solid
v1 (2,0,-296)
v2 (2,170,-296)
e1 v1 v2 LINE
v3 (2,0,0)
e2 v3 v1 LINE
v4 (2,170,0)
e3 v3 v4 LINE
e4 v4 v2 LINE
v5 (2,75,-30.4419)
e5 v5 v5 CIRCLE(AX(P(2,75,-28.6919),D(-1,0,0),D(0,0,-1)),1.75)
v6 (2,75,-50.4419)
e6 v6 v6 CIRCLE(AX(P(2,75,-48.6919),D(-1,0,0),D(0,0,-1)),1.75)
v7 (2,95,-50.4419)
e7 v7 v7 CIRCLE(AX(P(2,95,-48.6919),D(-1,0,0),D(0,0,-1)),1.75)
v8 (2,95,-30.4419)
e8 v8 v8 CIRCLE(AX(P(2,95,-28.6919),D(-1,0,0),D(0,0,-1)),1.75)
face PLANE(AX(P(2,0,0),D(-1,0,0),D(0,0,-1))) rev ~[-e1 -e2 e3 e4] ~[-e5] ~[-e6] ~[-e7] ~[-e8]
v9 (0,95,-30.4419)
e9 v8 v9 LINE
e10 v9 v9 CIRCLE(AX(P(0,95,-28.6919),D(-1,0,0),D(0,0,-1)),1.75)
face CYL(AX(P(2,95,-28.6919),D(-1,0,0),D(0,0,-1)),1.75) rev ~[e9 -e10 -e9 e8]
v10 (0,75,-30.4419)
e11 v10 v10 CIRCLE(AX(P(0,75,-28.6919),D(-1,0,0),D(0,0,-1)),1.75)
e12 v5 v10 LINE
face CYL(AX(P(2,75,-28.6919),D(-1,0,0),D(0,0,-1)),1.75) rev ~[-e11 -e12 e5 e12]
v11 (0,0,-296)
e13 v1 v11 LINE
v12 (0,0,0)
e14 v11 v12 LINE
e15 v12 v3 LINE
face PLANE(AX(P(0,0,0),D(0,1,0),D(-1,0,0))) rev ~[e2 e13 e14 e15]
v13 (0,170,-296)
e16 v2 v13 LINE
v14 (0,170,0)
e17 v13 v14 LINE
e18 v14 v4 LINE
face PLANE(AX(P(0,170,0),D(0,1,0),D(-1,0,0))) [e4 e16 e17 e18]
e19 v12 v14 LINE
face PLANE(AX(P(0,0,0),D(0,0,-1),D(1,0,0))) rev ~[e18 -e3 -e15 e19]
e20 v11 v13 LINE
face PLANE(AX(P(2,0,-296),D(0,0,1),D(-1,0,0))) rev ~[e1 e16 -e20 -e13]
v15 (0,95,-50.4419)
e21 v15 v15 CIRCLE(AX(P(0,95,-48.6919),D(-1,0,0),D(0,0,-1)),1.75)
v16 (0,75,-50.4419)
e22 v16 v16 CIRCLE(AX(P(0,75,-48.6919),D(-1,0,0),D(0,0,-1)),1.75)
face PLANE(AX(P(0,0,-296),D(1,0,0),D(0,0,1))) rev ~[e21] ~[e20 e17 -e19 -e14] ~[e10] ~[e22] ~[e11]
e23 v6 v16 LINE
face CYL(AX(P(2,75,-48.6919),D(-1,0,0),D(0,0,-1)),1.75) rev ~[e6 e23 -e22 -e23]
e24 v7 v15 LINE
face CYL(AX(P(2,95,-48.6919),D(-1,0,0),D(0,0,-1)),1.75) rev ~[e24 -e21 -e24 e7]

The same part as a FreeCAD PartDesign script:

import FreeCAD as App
import Part
import Sketcher

V = App.Vector

doc = App.newDocument("Part")
body = doc.addObject("PartDesign::Body", "Body")

sketch1 = doc.addObject("Sketcher::SketchObject", "Sketch")
body.addObject(sketch1)
sketch1.AttachmentSupport = (doc.XZ_Plane, [""])
sketch1.MapMode = "FlatFace"
sketch1.addGeometry(Part.LineSegment(V(0, -296, 0), V(0, 0, 0)), False)
sketch1.addGeometry(Part.LineSegment(V(0, 0, 0), V(2, 0, 0)), False)
sketch1.addGeometry(Part.LineSegment(V(2, 0, 0), V(2, -296, 0)), False)
sketch1.addGeometry(Part.LineSegment(V(2, -296, 0), V(0, -296, 0)), False)
sketch1.addConstraint(Sketcher.Constraint("Coincident", 0, 2, 1, 1))
sketch1.addConstraint(Sketcher.Constraint("Coincident", 1, 2, 2, 1))
sketch1.addConstraint(Sketcher.Constraint("Coincident", 2, 2, 3, 1))
sketch1.addConstraint(Sketcher.Constraint("Coincident", 3, 2, 0, 1))
sketch1.addConstraint(Sketcher.Constraint("Vertical", 0))
sketch1.addConstraint(Sketcher.Constraint("Horizontal", 1))
sketch1.addConstraint(Sketcher.Constraint("Vertical", 2))
sketch1.addConstraint(Sketcher.Constraint("Horizontal", 3))
sketch1.addConstraint(Sketcher.Constraint("Coincident", 0, 2, -1, 1))
sketch1.addConstraint(Sketcher.Constraint("DistanceX", 1, 1, 1, 2, 2.0))
sketch1.addConstraint(Sketcher.Constraint("DistanceY", 0, 1, 0, 2, 296.0))
pad1 = doc.addObject("PartDesign::Pad", "Pad")
body.addObject(pad1)
pad1.Profile = sketch1
pad1.Length = 170
pad1.Reversed = True

sketch2 = doc.addObject("Sketcher::SketchObject", "Sketch001")
body.addObject(sketch2)
sketch2.AttachmentSupport = (doc.YZ_Plane, [""])
sketch2.MapMode = "FlatFace"
sketch2.AttachmentOffset = App.Placement(V(0, 0, 2), App.Rotation())
sketch2.addGeometry(Part.Circle(V(95, -48.7, 0), V(0, 0, 1), 1.8), False)
sketch2.addGeometry(Part.Circle(V(95, -28.7, 0), V(0, 0, 1), 1.8), False)
sketch2.addGeometry(Part.Circle(V(75, -28.7, 0), V(0, 0, 1), 1.8), False)
sketch2.addGeometry(Part.Circle(V(75, -48.7, 0), V(0, 0, 1), 1.8), False)
sketch2.addConstraint(Sketcher.Constraint("Equal", 0, 1))
sketch2.addConstraint(Sketcher.Constraint("Equal", 1, 2))
sketch2.addConstraint(Sketcher.Constraint("Equal", 2, 3))
sketch2.addConstraint(Sketcher.Constraint("Horizontal", 1, 3, 2, 3))
sketch2.addConstraint(Sketcher.Constraint("Horizontal", 0, 3, 3, 3))
sketch2.addConstraint(Sketcher.Constraint("Vertical", 0, 3, 1, 3))
sketch2.addConstraint(Sketcher.Constraint("Vertical", 2, 3, 3, 3))
sketch2.addConstraint(Sketcher.Constraint("Diameter", 0, 3.5))
sketch2.addConstraint(Sketcher.Constraint("DistanceX", -1, 1, 0, 3, 95.0))
sketch2.addConstraint(Sketcher.Constraint("DistanceX", -1, 1, 2, 3, 75.0))
sketch2.addConstraint(Sketcher.Constraint("DistanceY", 0, 3, 1, 3, 20.0))
sketch2.addConstraint(Sketcher.Constraint("DistanceY", 0, 3, -1, 1, 48.692))
doc.recompute()
hole = doc.addObject("PartDesign::Hole", "Hole")
body.addObject(hole)
hole.Profile = sketch2
hole.ThreadType = "None"
hole.Diameter = 3.5
hole.DepthType = "ThroughAll"

doc.recompute()
